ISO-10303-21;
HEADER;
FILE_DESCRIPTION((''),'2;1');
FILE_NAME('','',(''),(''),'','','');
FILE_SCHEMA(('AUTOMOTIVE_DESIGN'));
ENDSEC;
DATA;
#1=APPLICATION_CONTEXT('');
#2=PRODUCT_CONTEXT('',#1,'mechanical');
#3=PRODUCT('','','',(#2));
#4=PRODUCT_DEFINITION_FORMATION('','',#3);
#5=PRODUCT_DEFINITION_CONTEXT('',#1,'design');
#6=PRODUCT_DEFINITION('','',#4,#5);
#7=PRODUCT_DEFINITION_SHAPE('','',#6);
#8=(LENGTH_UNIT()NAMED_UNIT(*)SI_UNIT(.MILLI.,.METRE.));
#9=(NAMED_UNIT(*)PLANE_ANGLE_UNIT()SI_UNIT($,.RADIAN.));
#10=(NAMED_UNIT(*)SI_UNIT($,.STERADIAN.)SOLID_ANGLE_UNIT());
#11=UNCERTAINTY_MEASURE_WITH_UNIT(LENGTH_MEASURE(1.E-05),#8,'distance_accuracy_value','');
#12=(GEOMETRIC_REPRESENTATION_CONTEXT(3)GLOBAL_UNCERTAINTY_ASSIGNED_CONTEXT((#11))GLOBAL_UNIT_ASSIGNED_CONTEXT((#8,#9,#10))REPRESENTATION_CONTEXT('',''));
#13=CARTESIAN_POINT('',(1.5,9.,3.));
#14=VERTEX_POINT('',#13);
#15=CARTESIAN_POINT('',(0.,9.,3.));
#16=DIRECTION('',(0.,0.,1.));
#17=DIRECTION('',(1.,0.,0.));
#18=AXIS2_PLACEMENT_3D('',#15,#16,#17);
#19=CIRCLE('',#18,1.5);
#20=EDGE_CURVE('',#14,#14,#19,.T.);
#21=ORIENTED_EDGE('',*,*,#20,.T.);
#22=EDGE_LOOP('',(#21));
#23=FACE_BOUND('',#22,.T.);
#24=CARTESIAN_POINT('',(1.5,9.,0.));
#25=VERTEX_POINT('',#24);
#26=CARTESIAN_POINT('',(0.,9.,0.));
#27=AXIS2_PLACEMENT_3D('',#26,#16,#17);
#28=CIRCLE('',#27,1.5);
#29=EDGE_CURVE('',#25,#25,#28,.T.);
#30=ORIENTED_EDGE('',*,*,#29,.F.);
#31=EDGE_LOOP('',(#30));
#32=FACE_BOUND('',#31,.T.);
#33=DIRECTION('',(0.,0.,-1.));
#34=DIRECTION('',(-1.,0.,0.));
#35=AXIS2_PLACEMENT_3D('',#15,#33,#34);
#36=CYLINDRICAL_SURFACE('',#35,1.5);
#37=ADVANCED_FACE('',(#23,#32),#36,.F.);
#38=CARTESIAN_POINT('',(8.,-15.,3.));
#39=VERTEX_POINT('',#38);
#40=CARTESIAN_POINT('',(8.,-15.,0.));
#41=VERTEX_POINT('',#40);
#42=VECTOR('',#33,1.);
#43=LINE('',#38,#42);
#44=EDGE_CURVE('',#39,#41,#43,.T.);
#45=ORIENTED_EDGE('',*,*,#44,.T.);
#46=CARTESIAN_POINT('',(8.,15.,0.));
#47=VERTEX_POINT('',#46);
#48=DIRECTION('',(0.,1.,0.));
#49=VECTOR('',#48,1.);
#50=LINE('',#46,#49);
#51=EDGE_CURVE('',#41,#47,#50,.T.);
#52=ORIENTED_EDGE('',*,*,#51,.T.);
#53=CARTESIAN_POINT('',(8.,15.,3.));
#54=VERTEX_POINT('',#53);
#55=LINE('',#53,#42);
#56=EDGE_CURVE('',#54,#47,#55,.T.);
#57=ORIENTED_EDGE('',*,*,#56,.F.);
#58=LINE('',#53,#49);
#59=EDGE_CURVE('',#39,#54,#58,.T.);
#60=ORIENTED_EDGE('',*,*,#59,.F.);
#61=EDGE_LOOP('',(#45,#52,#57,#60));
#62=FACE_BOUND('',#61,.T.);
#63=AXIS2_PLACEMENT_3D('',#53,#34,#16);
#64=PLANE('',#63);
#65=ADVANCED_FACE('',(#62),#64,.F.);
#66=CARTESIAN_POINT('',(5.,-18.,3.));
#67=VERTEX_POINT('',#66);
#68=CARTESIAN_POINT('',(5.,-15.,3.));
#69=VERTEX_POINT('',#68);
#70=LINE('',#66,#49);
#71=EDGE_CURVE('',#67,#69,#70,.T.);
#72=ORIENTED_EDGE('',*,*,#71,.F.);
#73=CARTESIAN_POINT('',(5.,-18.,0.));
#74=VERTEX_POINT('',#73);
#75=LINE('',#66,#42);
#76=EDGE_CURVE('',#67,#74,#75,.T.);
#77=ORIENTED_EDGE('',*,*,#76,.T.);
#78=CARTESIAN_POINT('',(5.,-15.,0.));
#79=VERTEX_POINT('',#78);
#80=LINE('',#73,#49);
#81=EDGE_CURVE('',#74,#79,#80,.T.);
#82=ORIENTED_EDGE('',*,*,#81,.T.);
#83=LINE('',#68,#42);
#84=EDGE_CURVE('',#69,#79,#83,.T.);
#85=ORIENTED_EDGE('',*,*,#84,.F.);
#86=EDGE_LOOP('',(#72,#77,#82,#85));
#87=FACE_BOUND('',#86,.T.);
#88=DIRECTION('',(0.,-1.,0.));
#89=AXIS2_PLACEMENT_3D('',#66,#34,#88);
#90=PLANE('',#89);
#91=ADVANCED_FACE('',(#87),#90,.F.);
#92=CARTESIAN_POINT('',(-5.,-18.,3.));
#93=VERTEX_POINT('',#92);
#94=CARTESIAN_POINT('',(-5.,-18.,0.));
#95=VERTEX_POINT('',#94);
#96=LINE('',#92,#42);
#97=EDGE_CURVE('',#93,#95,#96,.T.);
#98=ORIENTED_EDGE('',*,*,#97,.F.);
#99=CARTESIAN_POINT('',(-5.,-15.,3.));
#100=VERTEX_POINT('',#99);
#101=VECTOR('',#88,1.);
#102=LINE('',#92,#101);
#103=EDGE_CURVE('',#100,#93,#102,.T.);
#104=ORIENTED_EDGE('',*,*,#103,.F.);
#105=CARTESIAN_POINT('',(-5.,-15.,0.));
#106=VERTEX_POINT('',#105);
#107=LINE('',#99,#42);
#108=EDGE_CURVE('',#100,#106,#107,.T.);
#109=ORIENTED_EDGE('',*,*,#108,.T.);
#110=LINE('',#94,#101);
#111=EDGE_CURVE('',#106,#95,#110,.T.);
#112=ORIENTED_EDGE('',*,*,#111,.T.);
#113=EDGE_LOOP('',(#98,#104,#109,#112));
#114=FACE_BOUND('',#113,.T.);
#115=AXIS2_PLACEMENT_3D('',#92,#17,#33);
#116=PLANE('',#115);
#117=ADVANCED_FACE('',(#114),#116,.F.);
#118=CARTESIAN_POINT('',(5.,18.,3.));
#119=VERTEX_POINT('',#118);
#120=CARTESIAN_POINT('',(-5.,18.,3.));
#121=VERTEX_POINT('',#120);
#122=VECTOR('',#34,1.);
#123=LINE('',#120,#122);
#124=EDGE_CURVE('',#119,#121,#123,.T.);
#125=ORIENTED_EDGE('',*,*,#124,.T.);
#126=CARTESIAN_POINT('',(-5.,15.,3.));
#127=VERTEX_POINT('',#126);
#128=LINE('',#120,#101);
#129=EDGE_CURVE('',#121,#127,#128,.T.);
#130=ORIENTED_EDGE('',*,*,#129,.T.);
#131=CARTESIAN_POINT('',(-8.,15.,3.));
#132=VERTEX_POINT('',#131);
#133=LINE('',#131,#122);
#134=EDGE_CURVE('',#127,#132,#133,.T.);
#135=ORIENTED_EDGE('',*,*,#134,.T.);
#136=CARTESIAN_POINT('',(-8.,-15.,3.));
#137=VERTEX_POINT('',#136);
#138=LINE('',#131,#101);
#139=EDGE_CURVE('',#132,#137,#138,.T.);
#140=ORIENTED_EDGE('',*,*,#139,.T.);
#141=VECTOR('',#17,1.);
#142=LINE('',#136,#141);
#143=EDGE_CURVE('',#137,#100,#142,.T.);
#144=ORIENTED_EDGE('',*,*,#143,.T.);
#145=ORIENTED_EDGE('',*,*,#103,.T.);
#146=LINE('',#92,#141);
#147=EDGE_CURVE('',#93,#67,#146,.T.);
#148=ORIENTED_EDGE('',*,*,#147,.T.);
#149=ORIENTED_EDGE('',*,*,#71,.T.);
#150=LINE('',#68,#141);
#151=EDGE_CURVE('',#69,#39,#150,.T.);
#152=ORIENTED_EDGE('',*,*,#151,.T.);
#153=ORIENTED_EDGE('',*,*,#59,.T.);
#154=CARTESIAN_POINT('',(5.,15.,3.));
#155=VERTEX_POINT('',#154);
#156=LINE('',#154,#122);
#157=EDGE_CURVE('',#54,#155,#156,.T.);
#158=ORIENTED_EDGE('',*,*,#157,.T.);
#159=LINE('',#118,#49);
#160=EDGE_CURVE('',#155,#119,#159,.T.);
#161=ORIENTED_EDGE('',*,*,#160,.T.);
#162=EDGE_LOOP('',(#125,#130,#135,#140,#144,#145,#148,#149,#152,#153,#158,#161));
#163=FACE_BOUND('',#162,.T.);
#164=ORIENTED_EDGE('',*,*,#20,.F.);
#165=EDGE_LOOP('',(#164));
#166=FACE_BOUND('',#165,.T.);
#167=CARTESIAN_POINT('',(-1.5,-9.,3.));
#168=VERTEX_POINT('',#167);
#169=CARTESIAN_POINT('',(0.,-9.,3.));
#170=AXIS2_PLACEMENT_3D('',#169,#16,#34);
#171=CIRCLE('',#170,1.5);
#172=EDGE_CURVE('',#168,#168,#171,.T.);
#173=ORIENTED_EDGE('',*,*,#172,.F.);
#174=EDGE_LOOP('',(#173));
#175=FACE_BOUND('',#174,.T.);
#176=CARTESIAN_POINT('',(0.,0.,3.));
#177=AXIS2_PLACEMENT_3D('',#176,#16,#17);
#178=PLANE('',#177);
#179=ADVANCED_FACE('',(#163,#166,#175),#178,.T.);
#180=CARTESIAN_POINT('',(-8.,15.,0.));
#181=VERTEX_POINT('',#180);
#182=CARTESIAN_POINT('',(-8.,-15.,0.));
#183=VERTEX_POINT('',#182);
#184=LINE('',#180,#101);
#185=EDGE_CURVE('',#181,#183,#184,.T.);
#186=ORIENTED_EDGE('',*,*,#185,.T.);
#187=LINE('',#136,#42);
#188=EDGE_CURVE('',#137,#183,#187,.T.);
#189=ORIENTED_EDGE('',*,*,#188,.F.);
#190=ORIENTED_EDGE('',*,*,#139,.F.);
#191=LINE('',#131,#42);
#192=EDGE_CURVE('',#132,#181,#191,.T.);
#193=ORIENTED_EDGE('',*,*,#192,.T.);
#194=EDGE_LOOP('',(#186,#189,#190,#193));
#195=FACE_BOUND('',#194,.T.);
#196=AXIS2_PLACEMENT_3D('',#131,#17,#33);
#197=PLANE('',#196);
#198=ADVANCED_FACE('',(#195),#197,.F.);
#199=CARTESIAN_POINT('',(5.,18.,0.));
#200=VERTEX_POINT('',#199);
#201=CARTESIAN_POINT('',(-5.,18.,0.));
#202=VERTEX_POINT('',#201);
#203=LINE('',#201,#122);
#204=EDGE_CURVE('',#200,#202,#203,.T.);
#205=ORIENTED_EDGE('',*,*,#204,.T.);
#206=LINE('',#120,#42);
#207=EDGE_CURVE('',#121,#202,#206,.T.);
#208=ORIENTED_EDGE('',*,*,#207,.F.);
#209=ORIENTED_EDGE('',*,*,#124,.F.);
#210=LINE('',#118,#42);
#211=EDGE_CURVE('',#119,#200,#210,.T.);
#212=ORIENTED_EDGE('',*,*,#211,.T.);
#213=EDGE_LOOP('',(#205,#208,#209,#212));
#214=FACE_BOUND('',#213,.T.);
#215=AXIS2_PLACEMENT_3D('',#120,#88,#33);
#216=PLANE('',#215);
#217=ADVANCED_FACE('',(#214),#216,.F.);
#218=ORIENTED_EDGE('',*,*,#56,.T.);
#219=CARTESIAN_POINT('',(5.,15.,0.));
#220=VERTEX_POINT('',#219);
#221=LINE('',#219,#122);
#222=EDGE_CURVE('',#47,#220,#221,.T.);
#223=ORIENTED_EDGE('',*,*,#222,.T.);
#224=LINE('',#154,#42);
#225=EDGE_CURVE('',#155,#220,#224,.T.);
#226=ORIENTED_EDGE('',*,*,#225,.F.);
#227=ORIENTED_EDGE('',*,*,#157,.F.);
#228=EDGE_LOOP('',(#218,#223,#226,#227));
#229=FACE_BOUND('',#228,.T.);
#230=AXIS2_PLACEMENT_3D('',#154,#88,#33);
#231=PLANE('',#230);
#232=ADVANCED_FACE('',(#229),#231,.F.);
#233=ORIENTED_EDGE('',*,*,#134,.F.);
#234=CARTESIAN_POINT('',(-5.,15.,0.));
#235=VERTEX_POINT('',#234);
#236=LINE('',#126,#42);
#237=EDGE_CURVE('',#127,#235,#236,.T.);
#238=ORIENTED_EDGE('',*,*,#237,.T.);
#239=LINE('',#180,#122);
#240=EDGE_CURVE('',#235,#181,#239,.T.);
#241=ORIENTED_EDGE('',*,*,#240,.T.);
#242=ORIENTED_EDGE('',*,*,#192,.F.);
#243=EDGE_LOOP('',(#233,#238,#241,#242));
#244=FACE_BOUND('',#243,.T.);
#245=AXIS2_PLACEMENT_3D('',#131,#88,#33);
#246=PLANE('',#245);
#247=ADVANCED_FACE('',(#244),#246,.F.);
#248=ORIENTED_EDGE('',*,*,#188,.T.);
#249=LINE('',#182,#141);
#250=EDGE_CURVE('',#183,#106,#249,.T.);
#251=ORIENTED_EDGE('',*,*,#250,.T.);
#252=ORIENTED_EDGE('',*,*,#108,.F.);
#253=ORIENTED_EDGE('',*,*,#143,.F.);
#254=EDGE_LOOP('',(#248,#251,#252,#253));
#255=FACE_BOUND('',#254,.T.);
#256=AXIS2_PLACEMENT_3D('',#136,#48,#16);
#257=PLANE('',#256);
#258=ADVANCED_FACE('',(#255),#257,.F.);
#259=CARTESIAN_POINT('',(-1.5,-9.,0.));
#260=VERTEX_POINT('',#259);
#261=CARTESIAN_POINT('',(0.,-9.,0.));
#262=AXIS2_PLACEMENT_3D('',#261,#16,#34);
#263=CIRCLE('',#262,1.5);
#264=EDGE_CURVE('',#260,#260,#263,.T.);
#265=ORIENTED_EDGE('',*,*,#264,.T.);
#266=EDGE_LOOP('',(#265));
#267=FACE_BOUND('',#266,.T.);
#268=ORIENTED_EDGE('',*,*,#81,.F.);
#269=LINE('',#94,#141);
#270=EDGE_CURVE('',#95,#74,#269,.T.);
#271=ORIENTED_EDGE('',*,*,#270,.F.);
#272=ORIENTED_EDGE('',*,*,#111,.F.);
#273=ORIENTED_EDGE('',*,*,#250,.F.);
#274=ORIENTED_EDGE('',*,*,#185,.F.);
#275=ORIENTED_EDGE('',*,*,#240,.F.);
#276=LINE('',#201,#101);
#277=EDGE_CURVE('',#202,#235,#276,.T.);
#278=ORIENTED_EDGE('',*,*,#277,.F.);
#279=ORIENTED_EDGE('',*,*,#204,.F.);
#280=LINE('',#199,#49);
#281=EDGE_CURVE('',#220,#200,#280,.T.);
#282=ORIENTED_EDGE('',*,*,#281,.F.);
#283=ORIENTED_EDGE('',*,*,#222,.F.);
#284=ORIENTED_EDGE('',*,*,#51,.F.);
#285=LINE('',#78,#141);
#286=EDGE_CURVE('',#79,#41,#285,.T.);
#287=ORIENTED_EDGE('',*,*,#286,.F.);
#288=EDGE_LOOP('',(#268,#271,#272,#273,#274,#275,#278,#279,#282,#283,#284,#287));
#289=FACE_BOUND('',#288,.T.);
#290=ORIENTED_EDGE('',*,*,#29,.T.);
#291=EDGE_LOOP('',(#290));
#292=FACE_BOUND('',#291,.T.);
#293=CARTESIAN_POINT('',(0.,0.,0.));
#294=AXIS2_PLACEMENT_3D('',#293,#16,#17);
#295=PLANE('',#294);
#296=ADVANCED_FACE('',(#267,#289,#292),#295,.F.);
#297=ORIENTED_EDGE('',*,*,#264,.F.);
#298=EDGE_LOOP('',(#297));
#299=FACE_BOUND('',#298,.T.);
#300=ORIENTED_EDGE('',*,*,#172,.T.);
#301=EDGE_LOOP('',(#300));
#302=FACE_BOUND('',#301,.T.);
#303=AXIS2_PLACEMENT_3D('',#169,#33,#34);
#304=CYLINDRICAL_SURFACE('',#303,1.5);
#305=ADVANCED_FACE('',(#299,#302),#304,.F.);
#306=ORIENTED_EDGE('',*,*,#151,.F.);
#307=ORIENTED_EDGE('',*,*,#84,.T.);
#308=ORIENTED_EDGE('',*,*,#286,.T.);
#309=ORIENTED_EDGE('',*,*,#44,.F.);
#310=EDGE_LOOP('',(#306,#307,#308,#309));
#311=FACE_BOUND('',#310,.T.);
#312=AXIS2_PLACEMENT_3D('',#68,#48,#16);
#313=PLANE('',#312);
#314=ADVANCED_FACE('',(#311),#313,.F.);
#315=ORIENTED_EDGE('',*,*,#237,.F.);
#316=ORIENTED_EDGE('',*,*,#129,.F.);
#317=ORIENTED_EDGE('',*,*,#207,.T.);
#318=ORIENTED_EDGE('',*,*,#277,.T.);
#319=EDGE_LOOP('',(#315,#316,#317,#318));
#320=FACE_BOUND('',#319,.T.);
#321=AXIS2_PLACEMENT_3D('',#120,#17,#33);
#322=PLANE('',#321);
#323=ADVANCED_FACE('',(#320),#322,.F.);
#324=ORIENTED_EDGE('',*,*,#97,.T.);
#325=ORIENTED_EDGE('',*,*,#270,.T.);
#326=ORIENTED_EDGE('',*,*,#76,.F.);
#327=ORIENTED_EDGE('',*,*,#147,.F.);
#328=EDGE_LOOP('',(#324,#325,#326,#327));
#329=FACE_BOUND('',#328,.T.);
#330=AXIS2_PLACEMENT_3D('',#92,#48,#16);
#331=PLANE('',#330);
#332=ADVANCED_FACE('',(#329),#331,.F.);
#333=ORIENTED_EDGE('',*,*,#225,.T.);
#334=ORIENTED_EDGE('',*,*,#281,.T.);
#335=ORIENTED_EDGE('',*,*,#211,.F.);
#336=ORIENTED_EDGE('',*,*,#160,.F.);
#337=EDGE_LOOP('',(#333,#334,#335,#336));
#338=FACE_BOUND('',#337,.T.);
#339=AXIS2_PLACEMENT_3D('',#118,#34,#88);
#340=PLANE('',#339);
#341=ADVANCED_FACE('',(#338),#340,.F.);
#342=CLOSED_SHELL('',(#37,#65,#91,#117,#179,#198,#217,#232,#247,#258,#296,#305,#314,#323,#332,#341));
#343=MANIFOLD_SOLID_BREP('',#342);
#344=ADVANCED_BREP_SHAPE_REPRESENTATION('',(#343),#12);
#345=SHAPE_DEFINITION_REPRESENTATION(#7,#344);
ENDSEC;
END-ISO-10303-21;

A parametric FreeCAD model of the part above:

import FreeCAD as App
import Part
import Sketcher

V = App.Vector
Q = App.Units.Quantity

doc = App.newDocument("Part")
params = doc.addObject("Spreadsheet::Sheet", "Params")
for row, (alias, value) in enumerate([
    ("sketch1_diameter", "3 mm"),
    ("sketch1_width", "10 mm"),
    ("sketch1_width2", "3 mm"),
    ("sketch1_height", "30 mm"),
    ("pad1_length", "3 mm"),
], start=1):
    params.set(f"A{row}", alias)
    params.set(f"B{row}", "=" + value)
    params.setAlias(f"B{row}", alias)

body = doc.addObject("PartDesign::Body", "Body")

# Sketch on XY plane
sketch1 = body.newObject("Sketcher::SketchObject", "Sketch")
sketch1.AttachmentSupport = (doc.getObject("XY_Plane"), [""])
sketch1.MapMode = "FlatFace"
sketch1.addGeometry([
    Part.LineSegment(V(5, 18, 0), V(-5, 18, 0)),  # 0
    Part.LineSegment(V(-5, 18, 0), V(-5, 15, 0)),  # 1
    Part.LineSegment(V(-5, 15, 0), V(-8, 15, 0)),  # 2
    Part.LineSegment(V(-8, 15, 0), V(-8, -15, 0)),  # 3
    Part.LineSegment(V(-8, -15, 0), V(-5, -15, 0)),  # 4
    Part.LineSegment(V(-5, -15, 0), V(-5, -18, 0)),  # 5
    Part.LineSegment(V(-5, -18, 0), V(5, -18, 0)),  # 6
    Part.LineSegment(V(5, -18, 0), V(5, -15, 0)),  # 7
    Part.LineSegment(V(5, -15, 0), V(8, -15, 0)),  # 8
    Part.LineSegment(V(8, -15, 0), V(8, 15, 0)),  # 9
    Part.LineSegment(V(8, 15, 0), V(5, 15, 0)),  # 10
    Part.LineSegment(V(5, 15, 0), V(5, 18, 0)),  # 11
    Part.Circle(V(0, -9, 0), V(0, 0, 1), 1.5),  # 12
    Part.Circle(V(0, 9, 0), V(0, 0, 1), 1.5),  # 13
], False)
sketch1.addConstraint([
    Sketcher.Constraint("Coincident", 0, 2, 1, 1),
    Sketcher.Constraint("Coincident", 1, 2, 2, 1),
    Sketcher.Constraint("Coincident", 2, 2, 3, 1),
    Sketcher.Constraint("Coincident", 3, 2, 4, 1),
    Sketcher.Constraint("Coincident", 4, 2, 5, 1),
    Sketcher.Constraint("Coincident", 5, 2, 6, 1),
    Sketcher.Constraint("Coincident", 6, 2, 7, 1),
    Sketcher.Constraint("Coincident", 7, 2, 8, 1),
    Sketcher.Constraint("Coincident", 8, 2, 9, 1),
    Sketcher.Constraint("Coincident", 9, 2, 10, 1),
    Sketcher.Constraint("Coincident", 10, 2, 11, 1),
    Sketcher.Constraint("Coincident", 11, 2, 0, 1),
    Sketcher.Constraint("Horizontal", 0),
    Sketcher.Constraint("Vertical", 1),
    Sketcher.Constraint("Horizontal", 2),
    Sketcher.Constraint("Vertical", 3),
    Sketcher.Constraint("Horizontal", 4),
    Sketcher.Constraint("Vertical", 5),
    Sketcher.Constraint("Horizontal", 6),
    Sketcher.Constraint("Vertical", 7),
    Sketcher.Constraint("Horizontal", 8),
    Sketcher.Constraint("Vertical", 9),
    Sketcher.Constraint("Horizontal", 10),
    Sketcher.Constraint("Vertical", 11),
    Sketcher.Constraint("Equal", 12, 13),
    Sketcher.Constraint("Symmetric", 12, 3, 13, 3, -1, 1),
    Sketcher.Constraint("Symmetric", 0, 2, 6, 2, -1, 1),
    Sketcher.Constraint("Symmetric", 2, 2, 8, 2, -1, 1),
    Sketcher.Constraint("Symmetric", 4, 2, 10, 2, -1, 1),
    Sketcher.Constraint("Symmetric", 4, 2, 7, 2, -2),
    Sketcher.Constraint("PointOnObject", 12, 3, -2),
    Sketcher.Constraint("Equal", 10, 1),
    Sketcher.Constraint("Diameter", 12, Q("3 mm")),
    Sketcher.Constraint("DistanceX", 0, 2, 0, 1, Q("10 mm")),
    Sketcher.Constraint("DistanceX", 2, 2, 2, 1, Q("3 mm")),
    Sketcher.Constraint("DistanceY", 3, 2, 3, 1, Q("30 mm")),
    Sketcher.Constraint("DistanceY", 12, 3, -1, 1, Q("9 mm")),
])
sketch1.setExpression("Constraints[32]", "Params.sketch1_diameter")
sketch1.setExpression("Constraints[33]", "Params.sketch1_width")
sketch1.setExpression("Constraints[34]", "Params.sketch1_width2")
sketch1.setExpression("Constraints[35]", "Params.sketch1_height")
pad1 = body.newObject("PartDesign::Pad", "Pad")
pad1.Profile = sketch1
pad1.setExpression("Length", "Params.pad1_length")

doc.recompute()
